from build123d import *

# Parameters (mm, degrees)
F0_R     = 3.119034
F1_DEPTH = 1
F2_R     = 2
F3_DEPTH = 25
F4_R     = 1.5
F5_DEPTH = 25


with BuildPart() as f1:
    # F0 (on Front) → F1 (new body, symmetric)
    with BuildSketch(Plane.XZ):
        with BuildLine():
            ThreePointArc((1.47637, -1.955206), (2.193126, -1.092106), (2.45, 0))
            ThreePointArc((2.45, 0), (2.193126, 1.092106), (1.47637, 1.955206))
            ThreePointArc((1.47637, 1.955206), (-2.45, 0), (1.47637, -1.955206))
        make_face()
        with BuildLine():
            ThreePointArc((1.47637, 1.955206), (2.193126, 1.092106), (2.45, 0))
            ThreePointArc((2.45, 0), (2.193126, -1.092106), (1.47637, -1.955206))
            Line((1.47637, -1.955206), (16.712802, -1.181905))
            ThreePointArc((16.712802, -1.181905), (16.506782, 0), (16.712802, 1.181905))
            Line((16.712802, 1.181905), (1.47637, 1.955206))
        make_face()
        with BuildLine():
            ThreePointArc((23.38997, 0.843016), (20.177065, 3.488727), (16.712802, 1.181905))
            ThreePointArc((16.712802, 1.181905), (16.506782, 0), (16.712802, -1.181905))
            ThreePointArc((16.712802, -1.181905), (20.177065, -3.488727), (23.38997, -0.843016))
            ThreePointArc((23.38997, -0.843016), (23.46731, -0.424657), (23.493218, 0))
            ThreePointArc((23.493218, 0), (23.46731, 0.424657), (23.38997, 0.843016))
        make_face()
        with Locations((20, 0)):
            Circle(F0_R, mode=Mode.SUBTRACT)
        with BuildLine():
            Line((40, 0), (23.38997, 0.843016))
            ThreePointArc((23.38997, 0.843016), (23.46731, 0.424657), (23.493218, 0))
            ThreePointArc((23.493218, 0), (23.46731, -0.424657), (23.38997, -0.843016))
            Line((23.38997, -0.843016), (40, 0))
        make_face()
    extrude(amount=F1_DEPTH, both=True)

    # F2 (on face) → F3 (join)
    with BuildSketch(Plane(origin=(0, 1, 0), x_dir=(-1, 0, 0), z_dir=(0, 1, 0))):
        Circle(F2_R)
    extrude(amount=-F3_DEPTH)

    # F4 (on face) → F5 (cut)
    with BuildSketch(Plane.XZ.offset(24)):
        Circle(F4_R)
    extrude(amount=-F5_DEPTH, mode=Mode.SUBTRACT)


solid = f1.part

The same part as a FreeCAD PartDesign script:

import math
import FreeCAD as App
import Part
import Sketcher
from FreeCAD import Vector
Q = App.Units.Quantity

doc = App.newDocument("Part")
body = doc.addObject("PartDesign::Body", "Body")

sketch1 = doc.addObject("Sketcher::SketchObject", "Sketch")
body.addObject(sketch1)
sketch1.AttachmentSupport = (doc.XZ_Plane, [""])
sketch1.MapMode = "FlatFace"
sketch1.addGeometry(Part.ArcOfCircle(Part.Circle(Vector(0, 0, 0), Vector(0, 0, 1), 2.4), math.radians(53), math.radians(307)), False)
sketch1.addGeometry(Part.LineSegment(Vector(1.5, -2, 0), Vector(16.7, -1.2, 0)), False)
sketch1.addGeometry(Part.ArcOfCircle(Part.Circle(Vector(20, 0, 0), Vector(0, 0, 1), 3.5), math.radians(-160), math.radians(-14)), False)
sketch1.addGeometry(Part.LineSegment(Vector(23.4, -0.8, 0), Vector(40, 0, 0)), False)
sketch1.addGeometry(Part.LineSegment(Vector(40, 0, 0), Vector(23.4, 0.8, 0)), False)
sketch1.addGeometry(Part.ArcOfCircle(Part.Circle(Vector(20, 0, 0), Vector(0, 0, 1), 3.5), math.radians(14), math.radians(160)), False)
sketch1.addGeometry(Part.LineSegment(Vector(16.7, 1.2, 0), Vector(1.5, 2, 0)), False)
sketch1.addGeometry(Part.Circle(Vector(20, 0, 0), Vector(0, 0, 1), 3.1), False)
sketch1.addConstraint(Sketcher.Constraint("Coincident", 0, 2, 1, 1))
sketch1.addConstraint(Sketcher.Constraint("Coincident", 1, 2, 2, 1))
sketch1.addConstraint(Sketcher.Constraint("Coincident", 2, 2, 3, 1))
sketch1.addConstraint(Sketcher.Constraint("Coincident", 3, 2, 4, 1))
sketch1.addConstraint(Sketcher.Constraint("Coincident", 4, 2, 5, 1))
sketch1.addConstraint(Sketcher.Constraint("Coincident", 5, 2, 6, 1))
sketch1.addConstraint(Sketcher.Constraint("Coincident", 6, 2, 0, 1))
sketch1.addConstraint(Sketcher.Constraint("Coincident", 0, 3, -1, 1))
sketch1.addConstraint(Sketcher.Constraint("Coincident", 5, 3, 2, 3))
sketch1.addConstraint(Sketcher.Constraint("Coincident", 7, 3, 2, 3))
sketch1.addConstraint(Sketcher.Constraint("Equal", 2, 5))
sketch1.addConstraint(Sketcher.Constraint("Symmetric", 2, 2, 4, 2, -1))
sketch1.addConstraint(Sketcher.Constraint("PointOnObject", 3, 2, -1))
sketch1.addConstraint(Sketcher.Constraint("Parallel", 1, 3))
sketch1.addConstraint(Sketcher.Constraint("Parallel", 4, 6))
sketch1.addConstraint(Sketcher.Constraint("Vertical", 1, 2, 5, 2))
sketch1.addConstraint(Sketcher.Constraint("Radius", 0, Q("2.45 mm")))
sketch1.addConstraint(Sketcher.Constraint("DistanceX", -1, 1, 2, 3, Q("20 mm")))
sketch1.addConstraint(Sketcher.Constraint("DistanceX", -1, 1, 3, 2, Q("40 mm")))
sketch1.addConstraint(Sketcher.Constraint("Diameter", 7, Q("6.238068 mm")))
sketch1.addConstraint(Sketcher.Constraint("Radius", 2, Q("3.493218 mm")))
sketch1.addConstraint(Sketcher.Constraint("DistanceX", -1, 1, 1, 2, Q("16.712802 mm")))
sketch1.addConstraint(Sketcher.Constraint("DistanceY", 0, 2, 1, 2, Q("0.773301 mm")))
pad1 = doc.addObject("PartDesign::Pad", "Pad")
body.addObject(pad1)
pad1.Profile = sketch1
pad1.Length = 2
pad1.Midplane = True

sketch2 = doc.addObject("Sketcher::SketchObject", "Sketch001")
body.addObject(sketch2)
sketch2.AttachmentSupport = (doc.XZ_Plane, [""])
sketch2.MapMode = "FlatFace"
sketch2.AttachmentOffset = App.Placement(Vector(0, 0, -1), App.Rotation())
sketch2.addGeometry(Part.Circle(Vector(0, 0, 0), Vector(0, 0, 1), 2), False)
sketch2.addConstraint(Sketcher.Constraint("Coincident", 0, 3, -1, 1))
sketch2.addConstraint(Sketcher.Constraint("Diameter", 0, Q("4 mm")))
pad2 = doc.addObject("PartDesign::Pad", "Pad001")
body.addObject(pad2)
pad2.Profile = sketch2
pad2.Length = 25

sketch3 = doc.addObject("Sketcher::SketchObject", "Sketch002")
body.addObject(sketch3)
sketch3.AttachmentSupport = (doc.XZ_Plane, [""])
sketch3.MapMode = "FlatFace"
sketch3.AttachmentOffset = App.Placement(Vector(0, 0, 24), App.Rotation())
sketch3.addGeometry(Part.Circle(Vector(0, 0, 0), Vector(0, 0, 1), 1.5), False)
sketch3.addConstraint(Sketcher.Constraint("Coincident", 0, 3, -1, 1))
sketch3.addConstraint(Sketcher.Constraint("Diameter", 0, Q("3 mm")))
pocket1 = doc.addObject("PartDesign::Pocket", "Pocket")
body.addObject(pocket1)
pocket1.Profile = sketch3
pocket1.Length = 25

doc.recompute()
